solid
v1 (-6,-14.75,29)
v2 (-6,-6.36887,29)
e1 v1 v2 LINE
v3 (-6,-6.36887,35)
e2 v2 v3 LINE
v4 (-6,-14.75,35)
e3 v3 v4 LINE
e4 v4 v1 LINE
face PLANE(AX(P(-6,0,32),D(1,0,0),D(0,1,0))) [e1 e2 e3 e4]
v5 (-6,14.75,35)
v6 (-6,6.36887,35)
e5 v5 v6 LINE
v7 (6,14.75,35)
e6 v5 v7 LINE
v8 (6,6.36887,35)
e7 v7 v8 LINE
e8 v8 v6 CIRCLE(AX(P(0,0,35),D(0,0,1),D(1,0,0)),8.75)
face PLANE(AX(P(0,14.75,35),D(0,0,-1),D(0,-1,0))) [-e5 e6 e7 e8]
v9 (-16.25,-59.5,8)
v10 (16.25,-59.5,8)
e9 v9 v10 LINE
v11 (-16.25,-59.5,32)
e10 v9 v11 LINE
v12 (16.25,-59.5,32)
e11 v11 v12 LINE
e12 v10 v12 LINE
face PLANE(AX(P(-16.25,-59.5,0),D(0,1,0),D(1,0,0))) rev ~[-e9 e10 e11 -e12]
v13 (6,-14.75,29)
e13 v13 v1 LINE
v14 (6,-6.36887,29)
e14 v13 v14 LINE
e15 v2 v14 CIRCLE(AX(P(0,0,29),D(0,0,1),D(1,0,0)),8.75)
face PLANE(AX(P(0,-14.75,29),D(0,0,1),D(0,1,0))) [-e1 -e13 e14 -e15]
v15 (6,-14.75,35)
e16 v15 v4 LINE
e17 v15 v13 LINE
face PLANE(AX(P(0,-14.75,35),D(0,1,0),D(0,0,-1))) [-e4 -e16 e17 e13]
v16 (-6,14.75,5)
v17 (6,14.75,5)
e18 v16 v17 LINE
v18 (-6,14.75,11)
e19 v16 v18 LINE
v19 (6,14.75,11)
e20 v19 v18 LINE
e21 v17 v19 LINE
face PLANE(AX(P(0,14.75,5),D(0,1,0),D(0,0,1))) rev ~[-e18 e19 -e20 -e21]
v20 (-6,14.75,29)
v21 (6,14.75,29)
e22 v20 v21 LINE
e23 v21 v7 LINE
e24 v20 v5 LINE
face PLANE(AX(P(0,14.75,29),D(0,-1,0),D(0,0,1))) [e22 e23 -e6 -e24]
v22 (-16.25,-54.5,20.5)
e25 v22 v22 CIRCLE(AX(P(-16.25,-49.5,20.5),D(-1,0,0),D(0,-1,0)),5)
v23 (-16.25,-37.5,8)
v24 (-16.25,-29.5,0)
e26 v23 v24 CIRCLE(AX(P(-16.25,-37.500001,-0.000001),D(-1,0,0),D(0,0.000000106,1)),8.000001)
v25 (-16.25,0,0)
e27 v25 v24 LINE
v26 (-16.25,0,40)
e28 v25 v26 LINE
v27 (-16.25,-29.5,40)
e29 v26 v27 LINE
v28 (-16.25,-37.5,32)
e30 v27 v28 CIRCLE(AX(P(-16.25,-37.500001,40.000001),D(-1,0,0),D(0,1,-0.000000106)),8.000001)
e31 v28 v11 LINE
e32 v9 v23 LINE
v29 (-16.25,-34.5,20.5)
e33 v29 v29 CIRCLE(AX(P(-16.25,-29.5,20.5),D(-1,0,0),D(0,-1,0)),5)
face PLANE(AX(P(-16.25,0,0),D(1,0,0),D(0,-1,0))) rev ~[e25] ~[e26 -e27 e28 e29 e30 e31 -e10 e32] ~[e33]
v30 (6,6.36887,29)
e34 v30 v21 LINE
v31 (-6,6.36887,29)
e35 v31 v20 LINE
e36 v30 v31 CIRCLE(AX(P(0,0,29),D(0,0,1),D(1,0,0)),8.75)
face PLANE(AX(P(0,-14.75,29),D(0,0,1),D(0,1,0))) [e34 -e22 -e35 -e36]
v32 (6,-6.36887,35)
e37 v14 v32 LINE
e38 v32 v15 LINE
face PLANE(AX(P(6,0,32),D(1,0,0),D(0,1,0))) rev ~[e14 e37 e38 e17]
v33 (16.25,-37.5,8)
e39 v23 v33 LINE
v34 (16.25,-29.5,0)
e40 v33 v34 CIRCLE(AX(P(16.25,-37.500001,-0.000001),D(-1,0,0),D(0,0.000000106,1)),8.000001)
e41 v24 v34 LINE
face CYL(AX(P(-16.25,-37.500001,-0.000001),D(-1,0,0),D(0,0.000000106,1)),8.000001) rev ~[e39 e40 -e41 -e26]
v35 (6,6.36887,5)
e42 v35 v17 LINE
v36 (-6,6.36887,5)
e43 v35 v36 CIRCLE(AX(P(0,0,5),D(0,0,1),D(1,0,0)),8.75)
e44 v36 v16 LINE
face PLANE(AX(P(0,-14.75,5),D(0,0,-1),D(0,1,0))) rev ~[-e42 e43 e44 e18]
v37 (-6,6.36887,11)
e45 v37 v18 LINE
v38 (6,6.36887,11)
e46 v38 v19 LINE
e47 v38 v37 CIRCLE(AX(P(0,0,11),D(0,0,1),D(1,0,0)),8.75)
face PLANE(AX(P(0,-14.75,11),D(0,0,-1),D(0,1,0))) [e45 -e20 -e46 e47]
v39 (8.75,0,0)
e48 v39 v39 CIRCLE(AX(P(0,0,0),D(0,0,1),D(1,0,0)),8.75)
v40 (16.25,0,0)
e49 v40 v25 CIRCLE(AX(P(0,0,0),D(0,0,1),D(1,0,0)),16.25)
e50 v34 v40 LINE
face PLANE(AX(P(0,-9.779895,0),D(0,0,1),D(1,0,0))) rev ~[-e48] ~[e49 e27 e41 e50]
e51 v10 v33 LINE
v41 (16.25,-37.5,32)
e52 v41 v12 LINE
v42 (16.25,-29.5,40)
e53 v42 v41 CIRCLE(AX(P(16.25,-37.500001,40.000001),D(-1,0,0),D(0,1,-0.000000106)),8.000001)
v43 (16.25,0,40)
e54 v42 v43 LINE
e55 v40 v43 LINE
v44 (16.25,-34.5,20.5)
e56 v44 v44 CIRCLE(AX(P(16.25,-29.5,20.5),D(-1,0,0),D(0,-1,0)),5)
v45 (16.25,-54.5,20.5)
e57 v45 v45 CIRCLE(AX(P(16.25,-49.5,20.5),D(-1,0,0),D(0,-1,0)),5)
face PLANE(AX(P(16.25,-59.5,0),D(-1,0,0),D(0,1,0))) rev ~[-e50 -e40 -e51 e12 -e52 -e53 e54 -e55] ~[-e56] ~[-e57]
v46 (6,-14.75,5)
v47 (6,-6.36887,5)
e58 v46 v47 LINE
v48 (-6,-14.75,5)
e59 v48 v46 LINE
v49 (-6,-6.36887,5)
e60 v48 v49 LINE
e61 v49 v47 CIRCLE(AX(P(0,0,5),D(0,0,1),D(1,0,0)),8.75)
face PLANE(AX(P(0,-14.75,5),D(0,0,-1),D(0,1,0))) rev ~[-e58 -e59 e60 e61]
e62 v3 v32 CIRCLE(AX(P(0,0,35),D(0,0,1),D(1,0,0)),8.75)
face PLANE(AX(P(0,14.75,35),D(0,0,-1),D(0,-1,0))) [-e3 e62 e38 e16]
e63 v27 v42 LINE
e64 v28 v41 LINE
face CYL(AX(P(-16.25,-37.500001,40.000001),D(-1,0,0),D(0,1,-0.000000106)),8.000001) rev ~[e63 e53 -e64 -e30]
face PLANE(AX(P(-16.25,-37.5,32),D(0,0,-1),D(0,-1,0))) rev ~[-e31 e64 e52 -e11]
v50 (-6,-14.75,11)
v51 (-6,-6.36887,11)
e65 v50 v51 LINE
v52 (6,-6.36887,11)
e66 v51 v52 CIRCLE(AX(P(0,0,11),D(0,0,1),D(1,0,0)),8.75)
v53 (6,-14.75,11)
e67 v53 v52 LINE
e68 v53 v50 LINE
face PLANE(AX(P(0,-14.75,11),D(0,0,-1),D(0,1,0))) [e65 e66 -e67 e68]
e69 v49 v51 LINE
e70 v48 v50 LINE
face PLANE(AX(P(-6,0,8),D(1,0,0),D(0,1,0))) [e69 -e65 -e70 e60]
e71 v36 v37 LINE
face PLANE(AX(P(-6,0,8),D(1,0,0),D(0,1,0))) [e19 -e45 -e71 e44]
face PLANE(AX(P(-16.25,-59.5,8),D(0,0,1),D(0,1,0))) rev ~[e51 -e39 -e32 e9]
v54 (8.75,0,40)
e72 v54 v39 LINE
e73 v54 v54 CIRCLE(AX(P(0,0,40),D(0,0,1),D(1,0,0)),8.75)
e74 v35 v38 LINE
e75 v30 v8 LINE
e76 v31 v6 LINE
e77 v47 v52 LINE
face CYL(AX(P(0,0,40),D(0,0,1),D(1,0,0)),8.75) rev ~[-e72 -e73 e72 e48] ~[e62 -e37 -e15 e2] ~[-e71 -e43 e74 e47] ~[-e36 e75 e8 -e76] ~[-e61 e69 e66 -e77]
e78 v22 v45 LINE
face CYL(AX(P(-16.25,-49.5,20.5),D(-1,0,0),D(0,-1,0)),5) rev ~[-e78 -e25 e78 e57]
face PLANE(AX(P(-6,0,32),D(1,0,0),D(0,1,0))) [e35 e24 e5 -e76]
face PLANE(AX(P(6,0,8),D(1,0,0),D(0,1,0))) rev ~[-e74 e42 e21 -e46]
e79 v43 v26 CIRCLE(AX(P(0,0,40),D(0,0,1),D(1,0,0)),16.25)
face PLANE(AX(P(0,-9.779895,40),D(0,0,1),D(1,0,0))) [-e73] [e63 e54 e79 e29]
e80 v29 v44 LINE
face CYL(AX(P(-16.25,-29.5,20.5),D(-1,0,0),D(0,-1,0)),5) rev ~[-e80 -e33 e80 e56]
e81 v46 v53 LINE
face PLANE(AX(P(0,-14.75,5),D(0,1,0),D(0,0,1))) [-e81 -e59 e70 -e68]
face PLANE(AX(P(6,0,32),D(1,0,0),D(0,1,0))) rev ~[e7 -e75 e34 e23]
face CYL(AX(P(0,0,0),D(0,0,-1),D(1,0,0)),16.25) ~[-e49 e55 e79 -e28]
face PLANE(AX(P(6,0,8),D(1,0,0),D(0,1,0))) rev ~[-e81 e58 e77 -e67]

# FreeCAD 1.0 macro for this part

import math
import FreeCAD as App
import Part
import Sketcher
Q = App.Units.Quantity

doc = App.newDocument("Part")
body = doc.addObject("PartDesign::Body", "Body")

# Sketch on XY plane
sketch1 = body.newObject("Sketcher::SketchObject", "Sketch")
sketch1.AttachmentSupport = (doc.getObject("XY_Plane"), [""])
sketch1.MapMode = "FlatFace"
sketch1.addGeometry([
    Part.ArcOfCircle(Part.Circle(App.Vector(0, 0, 0), App.Vector(0, 0, 1), 16), math.radians(0), math.radians(180)),
    Part.LineSegment(App.Vector(-16, 0, 0), App.Vector(-16, -60, 0)),
    Part.LineSegment(App.Vector(-16, -60, 0), App.Vector(16, -60, 0)),
    Part.LineSegment(App.Vector(16, -60, 0), App.Vector(16, 0, 0)),
], False)
sketch1.addConstraint([
    Sketcher.Constraint("Tangent", 0, 2, 1, 1),
    Sketcher.Constraint("Coincident", 1, 2, 2, 1),
    Sketcher.Constraint("Coincident", 2, 2, 3, 1),
    Sketcher.Constraint("Tangent", 3, 2, 0, 1),
    Sketcher.Constraint("Vertical", 1),
    Sketcher.Constraint("Horizontal", 2),
    Sketcher.Constraint("Vertical", 3),
    Sketcher.Constraint("Coincident", 0, 3, -1, 1),
    Sketcher.Constraint("Radius", 0, Q("16.25 mm")),
    Sketcher.Constraint("DistanceY", 1, 2, 1, 1, Q("59.5 mm")),
])
pad1 = body.newObject("PartDesign::Pad", "Pad")
pad1.Profile = sketch1
pad1.Length = 40

# Sketch on YZ plane
sketch2 = body.newObject("Sketcher::SketchObject", "Sketch001")
sketch2.AttachmentSupport = (doc.getObject("YZ_Plane"), [""])
sketch2.MapMode = "FlatFace"
sketch2.AttachmentOffset = App.Placement(App.Vector(0, 0, -16.25), App.Rotation())
sketch2.addGeometry([
    Part.LineSegment(App.Vector(-38, 32, 0), App.Vector(-60, 32, 0)),  # 0
    Part.LineSegment(App.Vector(-60, 32, 0), App.Vector(-60, 40, 0)),  # 1
    Part.LineSegment(App.Vector(-60, 40, 0), App.Vector(-30, 40, 0)),  # 2
    Part.ArcOfCircle(Part.Circle(App.Vector(-38, 40, 0), App.Vector(0, 0, 1), 8), math.radians(-90), math.radians(0)),  # 3
    Part.LineSegment(App.Vector(-30, 0, 0), App.Vector(-60, 0, 0)),  # 4
    Part.LineSegment(App.Vector(-60, 0, 0), App.Vector(-60, 8, 0)),  # 5
    Part.LineSegment(App.Vector(-60, 8, 0), App.Vector(-38, 8, 0)),  # 6
    Part.ArcOfCircle(Part.Circle(App.Vector(-38, 0, 0), App.Vector(0, 0, 1), 8), math.radians(0), math.radians(90)),  # 7
    Part.Circle(App.Vector(-30, 20, 0), App.Vector(0, 0, 1), 5),  # 8
    Part.Circle(App.Vector(-50, 20, 0), App.Vector(0, 0, 1), 5),  # 9
], False)
sketch2.addConstraint([
    Sketcher.Constraint("Coincident", 0, 2, 1, 1),
    Sketcher.Constraint("Coincident", 1, 2, 2, 1),
    Sketcher.Constraint("Coincident", 2, 2, 3, 2),
    Sketcher.Constraint("Tangent", 3, 1, 0, 1),
    Sketcher.Constraint("Coincident", 4, 2, 5, 1),
    Sketcher.Constraint("Coincident", 5, 2, 6, 1),
    Sketcher.Constraint("Tangent", 6, 2, 7, 2),
    Sketcher.Constraint("Coincident", 7, 1, 4, 1),
    Sketcher.Constraint("Horizontal", 0),
    Sketcher.Constraint("Vertical", 1),
    Sketcher.Constraint("Horizontal", 2),
    Sketcher.Constraint("Horizontal", 4),
    Sketcher.Constraint("Vertical", 5),
    Sketcher.Constraint("Horizontal", 6),
    Sketcher.Constraint("Equal", 3, 7),
    Sketcher.Constraint("Equal", 8, 9),
    Sketcher.Constraint("PointOnObject", 7, 3, -1),
    Sketcher.Constraint("PointOnObject", 4, 2, -1),
    Sketcher.Constraint("Horizontal", 8, 3, 9, 3),
    Sketcher.Constraint("Horizontal", 3, 3, 1, 2),
    Sketcher.Constraint("Vertical", 3, 3, 7, 3),
    Sketcher.Constraint("Vertical", 8, 3, 2, 2),
    Sketcher.Constraint("Vertical", 1, 2, 4, 2),
    Sketcher.Constraint("Diameter", 8, Q("10 mm")),
    Sketcher.Constraint("Radius", 3, Q("8.000001 mm")),
    Sketcher.Constraint("DistanceX", 0, 2, 0, 1, Q("22 mm")),
    Sketcher.Constraint("DistanceY", -1, 1, 3, 3, Q("40.000001 mm")),
    Sketcher.Constraint("DistanceX", 9, 3, 8, 3, Q("20 mm")),
    Sketcher.Constraint("DistanceX", 3, 3, -1, 1, Q("37.500001 mm")),
    Sketcher.Constraint("DistanceY", -1, 1, 8, 3, Q("20.5 mm")),
])
pocket1 = body.newObject("PartDesign::Pocket", "Pocket")
pocket1.Profile = sketch2
pocket1.Length = 32.5
pocket1.Reversed = True

# Sketch on XY plane
sketch3 = body.newObject("Sketcher::SketchObject", "Sketch002")
sketch3.AttachmentSupport = (doc.getObject("XY_Plane"), [""])
sketch3.MapMode = "FlatFace"
sketch3.AttachmentOffset = App.Placement(App.Vector(0, 0, 40), App.Rotation())
sketch3.addGeometry(Part.Circle(App.Vector(0, 0, 0), App.Vector(0, 0, 1), 9), False)
sketch3.addConstraint([
    Sketcher.Constraint("Coincident", 0, 3, -1, 1),
    Sketcher.Constraint("Diameter", 0, Q("17.5 mm")),
])
pocket2 = body.newObject("PartDesign::Pocket", "Pocket001")
pocket2.Profile = sketch3
pocket2.Length = 40

# Sketch on YZ plane
sketch4 = body.newObject("Sketcher::SketchObject", "Sketch003")
sketch4.AttachmentSupport = (doc.getObject("YZ_Plane"), [""])
sketch4.MapMode = "FlatFace"
sketch4.addGeometry([
    Part.LineSegment(App.Vector(-15, 29, 0), App.Vector(15, 29, 0)),  # 0
    Part.LineSegment(App.Vector(15, 29, 0), App.Vector(15, 35, 0)),  # 1
    Part.LineSegment(App.Vector(15, 35, 0), App.Vector(-15, 35, 0)),  # 2
    Part.LineSegment(App.Vector(-15, 35, 0), App.Vector(-15, 29, 0)),  # 3
    Part.LineSegment(App.Vector(-15, 11, 0), App.Vector(-15, 5, 0)),  # 4
    Part.LineSegment(App.Vector(-15, 5, 0), App.Vector(15, 5, 0)),  # 5
    Part.LineSegment(App.Vector(15, 5, 0), App.Vector(15, 11, 0)),  # 6
    Part.LineSegment(App.Vector(15, 11, 0), App.Vector(-15, 11, 0)),  # 7
], False)
sketch4.addConstraint([
    Sketcher.Constraint("Coincident", 0, 2, 1, 1),
    Sketcher.Constraint("Coincident", 1, 2, 2, 1),
    Sketcher.Constraint("Coincident", 2, 2, 3, 1),
    Sketcher.Constraint("Coincident", 3, 2, 0, 1),
    Sketcher.Constraint("Coincident", 4, 2, 5, 1),
    Sketcher.Constraint("Coincident", 5, 2, 6, 1),
    Sketcher.Constraint("Coincident", 6, 2, 7, 1),
    Sketcher.Constraint("Coincident", 7, 2, 4, 1),
    Sketcher.Constraint("Horizontal", 0),
    Sketcher.Constraint("Vertical", 1),
    Sketcher.Constraint("Horizontal", 2),
    Sketcher.Constraint("Vertical", 3),
    Sketcher.Constraint("Vertical", 4),
    Sketcher.Constraint("Horizontal", 5),
    Sketcher.Constraint("Vertical", 6),
    Sketcher.Constraint("Horizontal", 7),
    Sketcher.Constraint("Vertical", 3, 2, 4, 2),
    Sketcher.Constraint("Vertical", 1, 2, 5, 2),
    Sketcher.Constraint("Equal", 3, 4),
    Sketcher.Constraint("DistanceY", 1, 1, 1, 2, Q("6 mm")),
    Sketcher.Constraint("DistanceX", 0, 1, 0, 2, Q("29.5 mm")),
    Sketcher.Constraint("DistanceY", -1, 1, 0, 2, Q("29 mm")),
    Sketcher.Constraint("DistanceY", -1, 1, 4, 2, Q("5 mm")),
    Sketcher.Constraint("DistanceX", -1, 1, 0, 2, Q("14.75 mm")),
])
pocket3 = body.newObject("PartDesign::Pocket", "Pocket002")
pocket3.Profile = sketch4
pocket3.Length = 12
pocket3.Midplane = True

doc.recompute()
